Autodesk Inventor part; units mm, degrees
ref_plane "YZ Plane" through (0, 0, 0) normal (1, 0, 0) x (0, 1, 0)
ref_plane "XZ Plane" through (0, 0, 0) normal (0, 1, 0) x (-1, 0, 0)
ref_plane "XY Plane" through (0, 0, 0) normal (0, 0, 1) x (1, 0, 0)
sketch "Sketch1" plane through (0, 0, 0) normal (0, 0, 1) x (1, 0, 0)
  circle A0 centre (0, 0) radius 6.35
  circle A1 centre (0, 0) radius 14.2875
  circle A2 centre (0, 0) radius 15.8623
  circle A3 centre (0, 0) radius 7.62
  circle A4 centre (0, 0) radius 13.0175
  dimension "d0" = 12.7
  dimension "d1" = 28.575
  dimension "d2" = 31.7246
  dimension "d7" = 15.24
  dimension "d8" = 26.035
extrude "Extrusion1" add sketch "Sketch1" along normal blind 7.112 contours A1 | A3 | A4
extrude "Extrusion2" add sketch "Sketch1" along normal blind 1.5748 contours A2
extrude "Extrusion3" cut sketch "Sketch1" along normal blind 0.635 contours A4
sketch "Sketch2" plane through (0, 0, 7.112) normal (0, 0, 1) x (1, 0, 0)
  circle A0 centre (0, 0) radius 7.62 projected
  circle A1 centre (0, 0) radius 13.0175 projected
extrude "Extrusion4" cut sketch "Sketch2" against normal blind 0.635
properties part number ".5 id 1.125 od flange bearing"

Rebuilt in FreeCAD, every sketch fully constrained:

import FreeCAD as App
import Part
import Sketcher
Q = App.Units.Quantity

doc = App.newDocument("Part")
body = doc.addObject("PartDesign::Body", "Body")

# Sketch on XY plane
sketch1 = body.newObject("Sketcher::SketchObject", "Sketch")
sketch1.AttachmentSupport = (doc.getObject("XY_Plane"), [""])
sketch1.MapMode = "FlatFace"
sketch1.addGeometry(Part.Circle(App.Vector(0, 0, 0), App.Vector(0, 0, 1), 14.2875), False)
sketch1.addGeometry(Part.Circle(App.Vector(0, 0, 0), App.Vector(0, 0, 1), 6.35), False)
sketch1.addConstraint(Sketcher.Constraint("Coincident", 0, 3, -1, 1))
sketch1.addConstraint(Sketcher.Constraint("Coincident", 1, 3, -1, 1))
sketch1.addConstraint(Sketcher.Constraint("Diameter", 1, Q("0.5 in")))
sketch1.addConstraint(Sketcher.Constraint("Diameter", 0, Q("1.125 in")))
pad1 = body.newObject("PartDesign::Pad", "Pad")
pad1.Profile = sketch1
pad1.Length = Q("0.28 in")

# Sketch on XY plane
sketch2 = body.newObject("Sketcher::SketchObject", "Sketch001")
sketch2.AttachmentSupport = (doc.getObject("XY_Plane"), [""])
sketch2.MapMode = "FlatFace"
sketch2.addGeometry(Part.Circle(App.Vector(0, 0, 0), App.Vector(0, 0, 1), 15.8623), False)
sketch2.addGeometry(Part.Circle(App.Vector(0, 0, 0), App.Vector(0, 0, 1), 14.2875), False)
sketch2.addConstraint(Sketcher.Constraint("Coincident", 0, 3, -1, 1))
sketch2.addConstraint(Sketcher.Constraint("Coincident", 1, 3, -1, 1))
sketch2.addConstraint(Sketcher.Constraint("Diameter", 0, Q("1.249 in")))
sketch2.addConstraint(Sketcher.Constraint("Diameter", 1, Q("1.125 in")))
pad2 = body.newObject("PartDesign::Pad", "Pad001")
pad2.Profile = sketch2
pad2.Length = Q("0.062 in")

# Sketch on XY plane
sketch3 = body.newObject("Sketcher::SketchObject", "Sketch002")
sketch3.AttachmentSupport = (doc.getObject("XY_Plane"), [""])
sketch3.MapMode = "FlatFace"
sketch3.addGeometry(Part.Circle(App.Vector(0, 0, 0), App.Vector(0, 0, 1), 13.0175), False)
sketch3.addGeometry(Part.Circle(App.Vector(0, 0, 0), App.Vector(0, 0, 1), 7.62), False)
sketch3.addConstraint(Sketcher.Constraint("Coincident", 0, 3, -1, 1))
sketch3.addConstraint(Sketcher.Constraint("Coincident", 1, 3, -1, 1))
sketch3.addConstraint(Sketcher.Constraint("Diameter", 1, Q("0.6 in")))
sketch3.addConstraint(Sketcher.Constraint("Diameter", 0, Q("1.025 in")))
pocket1 = body.newObject("PartDesign::Pocket", "Pocket")
pocket1.Profile = sketch3
pocket1.Length = Q("0.025 in")
pocket1.Reversed = True

# Sketch on XY plane
sketch4 = body.newObject("Sketcher::SketchObject", "Sketch003")
sketch4.AttachmentSupport = (doc.getObject("XY_Plane"), [""])
sketch4.MapMode = "FlatFace"
sketch4.AttachmentOffset = App.Placement(App.Vector(0, 0, 0.28 * 25.4), App.Rotation())
sketch4.addGeometry(Part.Circle(App.Vector(0, 0, 0), App.Vector(0, 0, 1), 13.0175), False)
sketch4.addGeometry(Part.Circle(App.Vector(0, 0, 0), App.Vector(0, 0, 1), 7.62), False)
sketch4.addConstraint(Sketcher.Constraint("Coincident", 0, 3, -1, 1))
sketch4.addConstraint(Sketcher.Constraint("Coincident", 1, 3, -1, 1))
sketch4.addConstraint(Sketcher.Constraint("Diameter", 1, Q("0.6 in")))
sketch4.addConstraint(Sketcher.Constraint("Diameter", 0, Q("1.025 in")))
pocket2 = body.newObject("PartDesign::Pocket", "Pocket001")
pocket2.Profile = sketch4
pocket2.Length = Q("0.025 in")

doc.recompute()
